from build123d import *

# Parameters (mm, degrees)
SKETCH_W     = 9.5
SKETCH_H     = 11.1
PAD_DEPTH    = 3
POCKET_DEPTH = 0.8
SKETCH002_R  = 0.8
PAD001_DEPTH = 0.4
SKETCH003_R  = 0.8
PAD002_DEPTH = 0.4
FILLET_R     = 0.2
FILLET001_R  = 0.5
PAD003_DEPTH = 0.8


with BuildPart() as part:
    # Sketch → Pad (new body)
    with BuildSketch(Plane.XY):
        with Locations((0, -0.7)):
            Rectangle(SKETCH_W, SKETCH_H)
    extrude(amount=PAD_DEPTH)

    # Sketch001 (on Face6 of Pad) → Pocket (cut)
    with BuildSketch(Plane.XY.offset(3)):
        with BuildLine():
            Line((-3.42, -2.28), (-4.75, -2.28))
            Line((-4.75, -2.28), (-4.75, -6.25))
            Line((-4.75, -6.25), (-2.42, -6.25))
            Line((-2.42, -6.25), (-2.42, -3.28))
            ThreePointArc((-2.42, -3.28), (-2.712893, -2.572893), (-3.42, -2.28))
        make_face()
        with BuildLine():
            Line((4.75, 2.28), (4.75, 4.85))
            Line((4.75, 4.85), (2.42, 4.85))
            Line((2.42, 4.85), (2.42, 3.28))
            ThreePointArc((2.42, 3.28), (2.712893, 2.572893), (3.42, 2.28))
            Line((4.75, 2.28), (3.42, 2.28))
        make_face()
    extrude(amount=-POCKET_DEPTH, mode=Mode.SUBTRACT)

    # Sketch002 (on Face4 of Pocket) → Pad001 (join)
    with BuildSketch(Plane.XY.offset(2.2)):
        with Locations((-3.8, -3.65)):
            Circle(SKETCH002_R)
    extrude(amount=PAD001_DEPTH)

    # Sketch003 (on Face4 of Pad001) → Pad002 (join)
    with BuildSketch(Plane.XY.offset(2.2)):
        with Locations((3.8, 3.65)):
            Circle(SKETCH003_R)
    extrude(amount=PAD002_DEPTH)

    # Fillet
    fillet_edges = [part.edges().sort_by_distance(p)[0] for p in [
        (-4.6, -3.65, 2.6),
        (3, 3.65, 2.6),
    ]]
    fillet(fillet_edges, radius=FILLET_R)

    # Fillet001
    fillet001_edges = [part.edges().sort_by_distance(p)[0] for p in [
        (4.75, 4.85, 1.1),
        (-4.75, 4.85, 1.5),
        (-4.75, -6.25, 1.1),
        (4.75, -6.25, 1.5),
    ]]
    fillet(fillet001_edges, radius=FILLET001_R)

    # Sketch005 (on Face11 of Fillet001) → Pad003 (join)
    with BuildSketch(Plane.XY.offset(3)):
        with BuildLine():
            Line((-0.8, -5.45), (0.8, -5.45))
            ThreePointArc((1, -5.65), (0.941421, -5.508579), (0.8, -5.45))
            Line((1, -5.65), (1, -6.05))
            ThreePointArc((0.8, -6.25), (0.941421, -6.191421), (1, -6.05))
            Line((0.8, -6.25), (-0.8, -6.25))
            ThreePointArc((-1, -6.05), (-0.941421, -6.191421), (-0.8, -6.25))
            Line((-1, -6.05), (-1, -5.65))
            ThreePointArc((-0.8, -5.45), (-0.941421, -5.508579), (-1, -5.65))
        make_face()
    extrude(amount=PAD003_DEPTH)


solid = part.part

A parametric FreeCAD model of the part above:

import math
import FreeCAD as App
import Part
import Sketcher
Q = App.Units.Quantity


def edges_at(feature, points):
    """Names of the edges that pass closest to the given points."""
    edges = feature.Shape.Edges
    near = lambda p: min(range(len(edges)), key=lambda i: edges[i].distToShape(Part.Vertex(*p))[0])
    return sorted({f"Edge{near(p) + 1}" for p in points})

doc = App.newDocument("Part")
body = doc.addObject("PartDesign::Body", "Body")

# Sketch on XY plane
sketch1 = doc.addObject("Sketcher::SketchObject", "Sketch")
body.addObject(sketch1)
sketch1.AttachmentSupport = (doc.XY_Plane, [""])
sketch1.MapMode = "FlatFace"
sketch1.addGeometry([
    Part.LineSegment(App.Vector(-5, 5, 0), App.Vector(-5, -6, 0)),
    Part.LineSegment(App.Vector(-5, -6, 0), App.Vector(5, -6, 0)),
    Part.LineSegment(App.Vector(5, -6, 0), App.Vector(5, 5, 0)),
    Part.LineSegment(App.Vector(5, 5, 0), App.Vector(-5, 5, 0)),
], False)
sketch1.addConstraint([
    Sketcher.Constraint("Coincident", 0, 2, 1, 1),
    Sketcher.Constraint("Coincident", 1, 2, 2, 1),
    Sketcher.Constraint("Coincident", 2, 2, 3, 1),
    Sketcher.Constraint("Coincident", 3, 2, 0, 1),
    Sketcher.Constraint("Vertical", 0),
    Sketcher.Constraint("Horizontal", 1),
    Sketcher.Constraint("Vertical", 2),
    Sketcher.Constraint("Horizontal", 3),
    Sketcher.Constraint("DistanceX", 1, 1, 1, 2, Q("9.5 mm")),
    Sketcher.Constraint("DistanceY", 0, 2, 0, 1, Q("11.1 mm")),
    Sketcher.Constraint("DistanceX", 0, 2, -1, 1, Q("4.75 mm")),
    Sketcher.Constraint("DistanceY", 0, 2, -1, 1, Q("6.25 mm")),
])
pad1 = doc.addObject("PartDesign::Pad", "Pad")
body.addObject(pad1)
pad1.Profile = sketch1
pad1.Length = 3

# Sketch on XY plane
sketch2 = doc.addObject("Sketcher::SketchObject", "Sketch001")
body.addObject(sketch2)
sketch2.AttachmentSupport = (doc.XY_Plane, [""])
sketch2.MapMode = "FlatFace"
sketch2.AttachmentOffset = App.Placement(App.Vector(0, 0, 3), App.Rotation())
sketch2.addGeometry([
    Part.LineSegment(App.Vector(-3.4, -2.3, 0), App.Vector(-4.8, -2.3, 0)),  # 0
    Part.LineSegment(App.Vector(-4.8, -2.3, 0), App.Vector(-4.8, -6.2, 0)),  # 1
    Part.LineSegment(App.Vector(-4.8, -6.2, 0), App.Vector(-2.4, -6.2, 0)),  # 2
    Part.LineSegment(App.Vector(-2.4, -6.2, 0), App.Vector(-2.4, -3.3, 0)),  # 3
    Part.ArcOfCircle(Part.Circle(App.Vector(-3.4, -3.3, 0), App.Vector(0, 0, 1), 1), math.radians(0), math.radians(90)),  # 4
    Part.LineSegment(App.Vector(4.8, 2.3, 0), App.Vector(4.8, 4.8, 0)),  # 5
    Part.LineSegment(App.Vector(4.8, 4.8, 0), App.Vector(2.4, 4.8, 0)),  # 6
    Part.LineSegment(App.Vector(2.4, 4.8, 0), App.Vector(2.4, 3.3, 0)),  # 7
    Part.ArcOfCircle(Part.Circle(App.Vector(3.4, 3.3, 0), App.Vector(0, 0, 1), 1), math.radians(180), math.radians(270)),  # 8
    Part.LineSegment(App.Vector(3.4, 2.3, 0), App.Vector(4.8, 2.3, 0)),  # 9
], False)
sketch2.addConstraint([
    Sketcher.Constraint("Coincident", 0, 2, 1, 1),
    Sketcher.Constraint("Coincident", 1, 2, 2, 1),
    Sketcher.Constraint("Coincident", 2, 2, 3, 1),
    Sketcher.Constraint("Tangent", 3, 2, 4, 1),
    Sketcher.Constraint("Tangent", 4, 2, 0, 1),
    Sketcher.Constraint("Coincident", 5, 2, 6, 1),
    Sketcher.Constraint("Coincident", 6, 2, 7, 1),
    Sketcher.Constraint("Tangent", 7, 2, 8, 1),
    Sketcher.Constraint("Tangent", 8, 2, 9, 1),
    Sketcher.Constraint("Coincident", 9, 2, 5, 1),
    Sketcher.Constraint("Horizontal", 0),
    Sketcher.Constraint("Vertical", 1),
    Sketcher.Constraint("Horizontal", 2),
    Sketcher.Constraint("Vertical", 3),
    Sketcher.Constraint("Vertical", 5),
    Sketcher.Constraint("Horizontal", 6),
    Sketcher.Constraint("Vertical", 7),
    Sketcher.Constraint("Horizontal", 9),
    Sketcher.Constraint("Equal", 4, 8),
    Sketcher.Constraint("Symmetric", 4, 3, 8, 3, -1, 1),
    Sketcher.Constraint("Equal", 2, 6),
    Sketcher.Constraint("Radius", 4, Q("0.999999 mm")),
    Sketcher.Constraint("DistanceX", 0, 2, 0, 1, Q("1.33 mm")),
    Sketcher.Constraint("DistanceY", 1, 2, 1, 1, Q("3.97 mm")),
    Sketcher.Constraint("DistanceY", 5, 1, 5, 2, Q("2.57 mm")),
    Sketcher.Constraint("DistanceX", 0, 2, 5, 2, Q("9.5 mm")),
    Sketcher.Constraint("DistanceY", 4, 3, -1, 1, Q("3.279999 mm")),
])
pocket1 = doc.addObject("PartDesign::Pocket", "Pocket")
body.addObject(pocket1)
pocket1.Profile = sketch2
pocket1.Length = 0.8

# Sketch on XY plane
sketch3 = doc.addObject("Sketcher::SketchObject", "Sketch002")
body.addObject(sketch3)
sketch3.AttachmentSupport = (doc.XY_Plane, [""])
sketch3.MapMode = "FlatFace"
sketch3.AttachmentOffset = App.Placement(App.Vector(0, 0, 2.2), App.Rotation())
sketch3.addGeometry(Part.Circle(App.Vector(-3.8, -3.6, 0), App.Vector(0, 0, 1), 0.8), False)
sketch3.addConstraint([
    Sketcher.Constraint("Diameter", 0, Q("1.6 mm")),
    Sketcher.Constraint("DistanceX", 0, 3, -1, 1, Q("3.8 mm")),
    Sketcher.Constraint("DistanceY", 0, 3, -1, 1, Q("3.65 mm")),
])
pad2 = doc.addObject("PartDesign::Pad", "Pad001")
body.addObject(pad2)
pad2.Profile = sketch3
pad2.Length = 0.4

# Sketch on XY plane
sketch4 = doc.addObject("Sketcher::SketchObject", "Sketch003")
body.addObject(sketch4)
sketch4.AttachmentSupport = (doc.XY_Plane, [""])
sketch4.MapMode = "FlatFace"
sketch4.AttachmentOffset = App.Placement(App.Vector(0, 0, 2.2), App.Rotation())
sketch4.addGeometry(Part.Circle(App.Vector(3.8, 3.6, 0), App.Vector(0, 0, 1), 0.8), False)
sketch4.addConstraint([
    Sketcher.Constraint("Diameter", 0, Q("1.6 mm")),
    Sketcher.Constraint("DistanceX", -1, 1, 0, 3, Q("3.8 mm")),
    Sketcher.Constraint("DistanceY", -1, 1, 0, 3, Q("3.65 mm")),
])
pad3 = doc.addObject("PartDesign::Pad", "Pad002")
body.addObject(pad3)
pad3.Profile = sketch4
pad3.Length = 0.4
doc.recompute()

fillet = doc.addObject("PartDesign::Fillet", "Fillet")
body.addObject(fillet)
fillet.Base = (pad3, edges_at(pad3, [(-4.6, -3.65, 2.6), (3, 3.65, 2.6)]))
fillet.Radius = 0.2
doc.recompute()

fillet2 = doc.addObject("PartDesign::Fillet", "Fillet001")
body.addObject(fillet2)
fillet2.Base = (fillet, edges_at(fillet, [
    (4.75, 4.85, 1.1),
    (-4.75, 4.85, 1.5),
    (-4.75, -6.25, 1.1),
    (4.75, -6.25, 1.5),
]))
fillet2.Radius = 0.5

# Sketch on XY plane
sketch5 = doc.addObject("Sketcher::SketchObject", "Sketch004")
body.addObject(sketch5)
sketch5.AttachmentSupport = (doc.XY_Plane, [""])
sketch5.MapMode = "FlatFace"
sketch5.AttachmentOffset = App.Placement(App.Vector(0, 0, 3), App.Rotation())
sketch5.addGeometry([
    Part.LineSegment(App.Vector(0.8, -5.45, 0), App.Vector(-0.8, -5.45, 0)),  # 0
    Part.ArcOfCircle(Part.Circle(App.Vector(-0.8, -5.65, 0), App.Vector(0, 0, 1), 0.2), math.radians(90), math.radians(180)),  # 1
    Part.LineSegment(App.Vector(-1, -5.65, 0), App.Vector(-1, -6.05, 0)),  # 2
    Part.ArcOfCircle(Part.Circle(App.Vector(-0.8, -6.05, 0), App.Vector(0, 0, 1), 0.2), math.radians(-180), math.radians(-90)),  # 3
    Part.LineSegment(App.Vector(-0.8, -6.25, 0), App.Vector(0.8, -6.25, 0)),  # 4
    Part.ArcOfCircle(Part.Circle(App.Vector(0.8, -6.05, 0), App.Vector(0, 0, 1), 0.2), math.radians(-90), math.radians(0)),  # 5
    Part.LineSegment(App.Vector(1, -6.05, 0), App.Vector(1, -5.65, 0)),  # 6
    Part.ArcOfCircle(Part.Circle(App.Vector(0.8, -5.65, 0), App.Vector(0, 0, 1), 0.2), math.radians(0), math.radians(90)),  # 7
], False)
sketch5.addConstraint([
    Sketcher.Constraint("Coincident", 0, 2, 1, 1),
    Sketcher.Constraint("Coincident", 1, 2, 2, 1),
    Sketcher.Constraint("Coincident", 2, 2, 3, 1),
    Sketcher.Constraint("Coincident", 3, 2, 4, 1),
    Sketcher.Constraint("Coincident", 4, 2, 5, 1),
    Sketcher.Constraint("Coincident", 5, 2, 6, 1),
    Sketcher.Constraint("Coincident", 6, 2, 7, 1),
    Sketcher.Constraint("Coincident", 7, 2, 0, 1),
    Sketcher.Constraint("Horizontal", 0),
    Sketcher.Constraint("Vertical", 2),
    Sketcher.Constraint("Horizontal", 4),
    Sketcher.Constraint("Vertical", 6),
    Sketcher.Constraint("Equal", 1, 3),
    Sketcher.Constraint("Equal", 3, 5),
    Sketcher.Constraint("Equal", 5, 7),
    Sketcher.Constraint("Symmetric", 2, 2, 5, 2, -2),
    Sketcher.Constraint("Horizontal", 7, 3, 1, 2),
    Sketcher.Constraint("Horizontal", 5, 3, 2, 2),
    Sketcher.Constraint("Horizontal", 1, 2, 6, 2),
    Sketcher.Constraint("Vertical", 3, 3, 0, 2),
    Sketcher.Constraint("Vertical", 0, 2, 3, 2),
    Sketcher.Constraint("Vertical", 7, 3, 4, 2),
    Sketcher.Constraint("Vertical", 4, 2, 7, 2),
    Sketcher.Constraint("Radius", 1, Q("0.200001 mm")),
    Sketcher.Constraint("DistanceX", 0, 2, 0, 1, Q("1.6 mm")),
    Sketcher.Constraint("DistanceY", 2, 2, 2, 1, Q("0.4 mm")),
    Sketcher.Constraint("DistanceY", 1, 3, -1, 1, Q("5.650001 mm")),
])
pad4 = doc.addObject("PartDesign::Pad", "Pad003")
body.addObject(pad4)
pad4.Profile = sketch5
pad4.Length = 0.8

doc.recompute()
